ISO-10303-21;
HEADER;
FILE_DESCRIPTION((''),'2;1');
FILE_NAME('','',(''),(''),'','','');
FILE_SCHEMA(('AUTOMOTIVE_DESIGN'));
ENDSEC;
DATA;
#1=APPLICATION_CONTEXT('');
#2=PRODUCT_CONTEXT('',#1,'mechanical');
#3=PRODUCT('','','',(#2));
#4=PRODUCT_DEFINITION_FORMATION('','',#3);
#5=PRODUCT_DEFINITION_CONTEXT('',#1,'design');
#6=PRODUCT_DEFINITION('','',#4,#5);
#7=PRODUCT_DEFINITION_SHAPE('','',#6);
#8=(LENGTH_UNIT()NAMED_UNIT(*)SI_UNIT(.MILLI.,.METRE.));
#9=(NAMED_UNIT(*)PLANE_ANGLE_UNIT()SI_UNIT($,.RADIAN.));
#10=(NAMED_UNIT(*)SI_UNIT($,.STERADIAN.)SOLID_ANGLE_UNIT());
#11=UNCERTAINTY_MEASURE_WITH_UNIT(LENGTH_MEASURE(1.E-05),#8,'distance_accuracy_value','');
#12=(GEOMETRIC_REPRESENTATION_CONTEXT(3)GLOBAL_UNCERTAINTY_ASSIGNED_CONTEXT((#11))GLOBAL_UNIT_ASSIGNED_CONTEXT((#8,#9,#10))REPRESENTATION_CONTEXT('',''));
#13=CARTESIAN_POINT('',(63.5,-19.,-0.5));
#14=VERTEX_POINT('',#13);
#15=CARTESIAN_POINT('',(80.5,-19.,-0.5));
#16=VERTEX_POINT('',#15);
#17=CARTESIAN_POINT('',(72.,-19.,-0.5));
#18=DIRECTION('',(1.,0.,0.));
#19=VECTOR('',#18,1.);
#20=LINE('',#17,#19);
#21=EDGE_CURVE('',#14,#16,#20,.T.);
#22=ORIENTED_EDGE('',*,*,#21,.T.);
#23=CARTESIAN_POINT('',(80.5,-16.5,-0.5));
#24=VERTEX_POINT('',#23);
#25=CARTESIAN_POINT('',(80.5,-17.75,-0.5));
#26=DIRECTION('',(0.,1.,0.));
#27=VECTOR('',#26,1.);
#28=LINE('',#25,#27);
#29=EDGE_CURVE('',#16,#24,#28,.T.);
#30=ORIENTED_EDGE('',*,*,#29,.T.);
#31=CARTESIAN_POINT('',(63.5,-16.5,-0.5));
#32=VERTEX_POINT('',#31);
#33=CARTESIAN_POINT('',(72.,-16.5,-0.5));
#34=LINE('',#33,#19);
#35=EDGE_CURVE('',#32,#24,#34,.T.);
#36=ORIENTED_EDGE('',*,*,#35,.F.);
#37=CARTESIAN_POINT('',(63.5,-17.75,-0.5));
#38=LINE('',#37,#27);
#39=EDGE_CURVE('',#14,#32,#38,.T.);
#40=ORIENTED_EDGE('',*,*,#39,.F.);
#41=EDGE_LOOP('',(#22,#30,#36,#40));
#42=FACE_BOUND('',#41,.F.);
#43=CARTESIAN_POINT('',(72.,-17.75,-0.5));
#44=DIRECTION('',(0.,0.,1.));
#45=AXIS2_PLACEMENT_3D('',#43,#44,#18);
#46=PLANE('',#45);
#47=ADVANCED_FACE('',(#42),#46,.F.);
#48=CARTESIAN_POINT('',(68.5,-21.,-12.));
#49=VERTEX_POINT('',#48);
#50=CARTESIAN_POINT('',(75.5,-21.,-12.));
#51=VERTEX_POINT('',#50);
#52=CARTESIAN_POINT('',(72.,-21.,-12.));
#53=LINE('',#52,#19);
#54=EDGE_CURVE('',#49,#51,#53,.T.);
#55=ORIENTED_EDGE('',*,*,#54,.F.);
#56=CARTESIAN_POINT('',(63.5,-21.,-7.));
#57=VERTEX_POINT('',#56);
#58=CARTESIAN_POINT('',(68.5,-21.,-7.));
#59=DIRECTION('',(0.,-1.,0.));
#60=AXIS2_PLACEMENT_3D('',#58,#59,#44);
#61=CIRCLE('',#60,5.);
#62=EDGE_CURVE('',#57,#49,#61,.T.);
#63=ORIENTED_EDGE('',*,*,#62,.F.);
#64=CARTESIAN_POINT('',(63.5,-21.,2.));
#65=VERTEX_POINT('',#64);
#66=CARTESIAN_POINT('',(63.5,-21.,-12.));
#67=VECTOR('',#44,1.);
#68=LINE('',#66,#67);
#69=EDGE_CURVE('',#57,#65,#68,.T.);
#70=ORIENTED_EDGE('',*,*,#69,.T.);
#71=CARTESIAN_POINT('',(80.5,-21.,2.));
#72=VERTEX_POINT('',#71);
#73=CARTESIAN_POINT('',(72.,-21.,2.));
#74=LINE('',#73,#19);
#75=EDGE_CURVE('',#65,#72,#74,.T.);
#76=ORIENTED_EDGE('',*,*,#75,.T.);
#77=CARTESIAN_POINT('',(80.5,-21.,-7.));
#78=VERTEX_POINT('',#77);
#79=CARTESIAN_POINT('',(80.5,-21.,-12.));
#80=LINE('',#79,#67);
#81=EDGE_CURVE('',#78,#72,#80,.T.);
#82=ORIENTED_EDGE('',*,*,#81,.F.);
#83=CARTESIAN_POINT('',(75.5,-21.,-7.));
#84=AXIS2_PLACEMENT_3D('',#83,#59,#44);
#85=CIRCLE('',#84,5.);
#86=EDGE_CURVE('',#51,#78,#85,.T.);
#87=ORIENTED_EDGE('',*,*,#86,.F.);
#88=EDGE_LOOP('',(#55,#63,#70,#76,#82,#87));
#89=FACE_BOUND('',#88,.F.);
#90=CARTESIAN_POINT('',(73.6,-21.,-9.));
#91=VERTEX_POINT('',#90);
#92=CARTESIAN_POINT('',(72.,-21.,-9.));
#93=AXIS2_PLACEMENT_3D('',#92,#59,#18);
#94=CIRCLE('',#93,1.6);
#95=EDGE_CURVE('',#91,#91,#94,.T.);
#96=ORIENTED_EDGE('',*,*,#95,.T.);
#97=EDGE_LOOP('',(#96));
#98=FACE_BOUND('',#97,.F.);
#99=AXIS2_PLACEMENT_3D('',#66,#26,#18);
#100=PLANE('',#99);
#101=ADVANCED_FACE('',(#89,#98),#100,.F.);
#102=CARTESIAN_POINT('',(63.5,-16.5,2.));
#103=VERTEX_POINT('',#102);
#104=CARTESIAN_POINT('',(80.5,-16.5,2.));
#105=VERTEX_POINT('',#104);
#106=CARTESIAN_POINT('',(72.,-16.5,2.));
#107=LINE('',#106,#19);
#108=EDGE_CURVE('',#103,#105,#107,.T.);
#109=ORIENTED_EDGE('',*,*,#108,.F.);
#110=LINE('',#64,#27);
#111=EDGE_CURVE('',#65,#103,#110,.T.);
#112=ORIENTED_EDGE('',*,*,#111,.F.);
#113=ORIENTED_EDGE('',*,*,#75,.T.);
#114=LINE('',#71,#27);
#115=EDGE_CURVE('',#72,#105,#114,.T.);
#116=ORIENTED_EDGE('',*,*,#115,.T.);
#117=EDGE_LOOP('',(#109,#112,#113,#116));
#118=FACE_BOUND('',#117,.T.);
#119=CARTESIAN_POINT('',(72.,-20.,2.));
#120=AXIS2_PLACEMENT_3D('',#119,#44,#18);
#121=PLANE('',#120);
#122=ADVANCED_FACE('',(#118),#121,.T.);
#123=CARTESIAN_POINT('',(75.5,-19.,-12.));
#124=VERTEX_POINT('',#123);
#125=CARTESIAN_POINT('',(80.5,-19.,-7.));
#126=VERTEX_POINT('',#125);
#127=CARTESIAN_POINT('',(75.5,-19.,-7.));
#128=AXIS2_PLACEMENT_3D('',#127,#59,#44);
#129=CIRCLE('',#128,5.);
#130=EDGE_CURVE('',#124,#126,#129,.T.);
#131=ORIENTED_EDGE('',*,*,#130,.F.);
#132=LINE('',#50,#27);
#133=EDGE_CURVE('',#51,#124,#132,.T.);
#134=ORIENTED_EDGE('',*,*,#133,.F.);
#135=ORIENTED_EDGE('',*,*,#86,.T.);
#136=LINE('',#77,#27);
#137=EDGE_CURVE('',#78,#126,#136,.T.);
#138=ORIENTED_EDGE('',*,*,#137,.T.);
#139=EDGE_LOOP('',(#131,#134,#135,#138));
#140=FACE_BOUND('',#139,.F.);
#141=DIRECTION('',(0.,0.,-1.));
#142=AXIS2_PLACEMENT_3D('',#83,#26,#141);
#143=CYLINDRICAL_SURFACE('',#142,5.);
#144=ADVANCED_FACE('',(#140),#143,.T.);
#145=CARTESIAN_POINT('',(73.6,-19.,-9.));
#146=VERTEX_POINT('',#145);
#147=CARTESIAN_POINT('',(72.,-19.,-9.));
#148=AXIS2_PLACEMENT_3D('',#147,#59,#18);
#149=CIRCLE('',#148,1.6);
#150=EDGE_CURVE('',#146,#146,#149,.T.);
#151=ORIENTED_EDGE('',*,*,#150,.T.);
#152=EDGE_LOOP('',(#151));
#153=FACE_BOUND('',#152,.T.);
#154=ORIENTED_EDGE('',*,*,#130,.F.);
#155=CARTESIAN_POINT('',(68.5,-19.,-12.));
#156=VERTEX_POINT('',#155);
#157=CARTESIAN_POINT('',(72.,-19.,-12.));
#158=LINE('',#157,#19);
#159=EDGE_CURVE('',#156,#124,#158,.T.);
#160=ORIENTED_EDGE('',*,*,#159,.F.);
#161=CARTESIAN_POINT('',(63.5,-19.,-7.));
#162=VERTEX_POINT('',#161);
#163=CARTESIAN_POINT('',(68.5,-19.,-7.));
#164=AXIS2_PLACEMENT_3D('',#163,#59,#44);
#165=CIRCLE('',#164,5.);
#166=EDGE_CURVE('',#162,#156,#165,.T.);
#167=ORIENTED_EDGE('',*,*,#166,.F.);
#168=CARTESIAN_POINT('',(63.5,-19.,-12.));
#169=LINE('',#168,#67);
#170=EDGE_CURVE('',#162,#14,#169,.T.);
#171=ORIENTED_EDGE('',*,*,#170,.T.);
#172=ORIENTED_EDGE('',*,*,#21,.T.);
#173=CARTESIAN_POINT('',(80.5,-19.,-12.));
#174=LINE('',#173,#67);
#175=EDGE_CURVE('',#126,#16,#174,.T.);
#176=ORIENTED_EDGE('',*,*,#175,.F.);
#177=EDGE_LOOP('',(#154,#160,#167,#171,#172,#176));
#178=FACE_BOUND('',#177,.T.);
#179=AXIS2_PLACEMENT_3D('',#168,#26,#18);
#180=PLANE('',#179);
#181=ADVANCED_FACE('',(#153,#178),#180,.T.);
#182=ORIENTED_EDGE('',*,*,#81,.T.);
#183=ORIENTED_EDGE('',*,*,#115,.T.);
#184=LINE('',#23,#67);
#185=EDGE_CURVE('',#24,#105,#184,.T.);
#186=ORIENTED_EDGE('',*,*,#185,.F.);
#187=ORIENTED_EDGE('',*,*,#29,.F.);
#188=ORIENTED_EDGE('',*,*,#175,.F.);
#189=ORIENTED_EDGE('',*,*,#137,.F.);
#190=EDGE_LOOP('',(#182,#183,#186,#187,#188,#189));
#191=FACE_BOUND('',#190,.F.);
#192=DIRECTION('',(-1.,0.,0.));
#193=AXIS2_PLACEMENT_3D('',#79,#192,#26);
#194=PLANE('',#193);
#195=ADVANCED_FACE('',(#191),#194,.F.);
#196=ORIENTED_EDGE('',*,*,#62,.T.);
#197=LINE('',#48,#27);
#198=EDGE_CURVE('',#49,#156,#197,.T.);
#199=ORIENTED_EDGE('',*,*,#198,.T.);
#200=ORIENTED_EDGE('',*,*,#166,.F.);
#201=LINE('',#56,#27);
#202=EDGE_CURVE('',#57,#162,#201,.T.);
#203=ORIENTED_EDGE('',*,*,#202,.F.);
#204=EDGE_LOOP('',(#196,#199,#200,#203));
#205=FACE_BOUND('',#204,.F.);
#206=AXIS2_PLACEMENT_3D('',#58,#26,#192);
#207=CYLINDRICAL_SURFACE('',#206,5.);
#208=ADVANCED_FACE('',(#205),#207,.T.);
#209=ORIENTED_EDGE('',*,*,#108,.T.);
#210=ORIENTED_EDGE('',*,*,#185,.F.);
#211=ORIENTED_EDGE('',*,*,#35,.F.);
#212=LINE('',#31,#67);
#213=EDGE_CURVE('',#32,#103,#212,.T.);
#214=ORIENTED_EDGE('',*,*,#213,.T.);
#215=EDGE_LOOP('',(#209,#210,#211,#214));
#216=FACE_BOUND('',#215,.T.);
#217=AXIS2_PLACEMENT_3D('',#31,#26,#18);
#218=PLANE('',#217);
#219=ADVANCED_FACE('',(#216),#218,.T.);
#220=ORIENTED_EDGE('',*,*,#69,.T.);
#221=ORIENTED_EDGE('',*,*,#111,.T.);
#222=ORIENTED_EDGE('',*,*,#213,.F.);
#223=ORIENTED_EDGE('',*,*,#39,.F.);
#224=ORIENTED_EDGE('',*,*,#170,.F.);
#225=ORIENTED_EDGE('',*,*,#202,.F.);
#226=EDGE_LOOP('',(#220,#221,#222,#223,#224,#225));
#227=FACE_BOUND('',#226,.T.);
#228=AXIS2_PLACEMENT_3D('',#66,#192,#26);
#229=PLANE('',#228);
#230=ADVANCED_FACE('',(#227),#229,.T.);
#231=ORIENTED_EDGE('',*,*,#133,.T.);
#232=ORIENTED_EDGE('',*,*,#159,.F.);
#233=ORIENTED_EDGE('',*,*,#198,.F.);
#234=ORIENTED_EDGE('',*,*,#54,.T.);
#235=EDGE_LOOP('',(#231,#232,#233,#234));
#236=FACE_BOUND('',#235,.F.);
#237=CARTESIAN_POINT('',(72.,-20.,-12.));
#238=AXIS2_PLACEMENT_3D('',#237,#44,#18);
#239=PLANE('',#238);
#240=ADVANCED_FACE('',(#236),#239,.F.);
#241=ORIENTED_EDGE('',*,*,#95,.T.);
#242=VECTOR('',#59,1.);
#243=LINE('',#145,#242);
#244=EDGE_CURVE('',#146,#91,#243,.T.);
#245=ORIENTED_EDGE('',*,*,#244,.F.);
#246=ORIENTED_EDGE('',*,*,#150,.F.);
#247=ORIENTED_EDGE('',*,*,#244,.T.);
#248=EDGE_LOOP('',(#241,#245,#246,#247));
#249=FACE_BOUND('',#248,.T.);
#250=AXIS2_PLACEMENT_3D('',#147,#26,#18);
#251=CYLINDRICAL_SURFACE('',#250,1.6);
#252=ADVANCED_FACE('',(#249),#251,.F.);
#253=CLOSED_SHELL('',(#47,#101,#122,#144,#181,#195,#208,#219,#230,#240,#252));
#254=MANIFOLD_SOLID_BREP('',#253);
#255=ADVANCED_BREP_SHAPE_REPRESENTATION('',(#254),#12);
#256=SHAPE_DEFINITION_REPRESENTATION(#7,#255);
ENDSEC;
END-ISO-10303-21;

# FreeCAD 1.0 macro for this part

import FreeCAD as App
import Part
import Sketcher
from FreeCAD import Vector


def edges_at(feature, points):
    """Names of the edges that pass closest to the given points."""
    edges = feature.Shape.Edges
    near = lambda p: min(range(len(edges)), key=lambda i: edges[i].distToShape(Part.Vertex(*p))[0])
    return sorted({f"Edge{near(p) + 1}" for p in points})


def add_polygon(sketch, points):
    """Adds a closed chain of lines whose ends are joined by coincident constraints."""
    first, n = sketch.GeometryCount, len(points)
    for a, b in zip(points, points[1:] + points[:1]):
        sketch.addGeometry(Part.LineSegment(App.Vector(*a, 0), App.Vector(*b, 0)), False)
    for i in range(n):
        sketch.addConstraint(Sketcher.Constraint("Coincident", first + i, 2, first + (i + 1) % n, 1))

doc = App.newDocument("Part")
body = doc.addObject("PartDesign::Body", "Body")

# Sketch on XZ plane
sketch1 = doc.addObject("Sketcher::SketchObject", "Sketch")
body.addObject(sketch1)
sketch1.AttachmentSupport = (doc.XZ_Plane, [""])
sketch1.MapMode = "FlatFace"
sketch1.AttachmentOffset = App.Placement(Vector(0, 0, 19), App.Rotation())
sketch1.addGeometry(Part.Circle(Vector(72, -9, 0), Vector(0, 0, 1), 1.6), False)
sketch1.addConstraint([
    Sketcher.Constraint("Diameter", 0, 3.2),
    Sketcher.Constraint("DistanceX", -1, 1, 0, 3, 72.0),
    Sketcher.Constraint("DistanceY", 0, 3, -1, 1, 9.0),
])
pad1 = doc.addObject("PartDesign::Pad", "Pad")
body.addObject(pad1)
pad1.Profile = sketch1
pad1.Length = 2
body2 = doc.addObject("PartDesign::Body", "Body001")

# Sketch on XY plane
sketch2 = doc.addObject("Sketcher::SketchObject", "Sketch001")
body2.addObject(sketch2)
sketch2.AttachmentSupport = (doc.getObject("XY_Plane001"), [""])
sketch2.MapMode = "FlatFace"
sketch2.AttachmentOffset = App.Placement(Vector(0, 0, -12), App.Rotation())
add_polygon(sketch2, [(63.5, -19), (63.5, -21), (80.5, -21), (80.5, -19)])  # lines 0-3
sketch2.addConstraint([
    Sketcher.Constraint("Vertical", 0),
    Sketcher.Constraint("Horizontal", 1),
    Sketcher.Constraint("Vertical", 2),
    Sketcher.Constraint("Horizontal", 3),
    Sketcher.Constraint("DistanceX", 1, 1, 1, 2, 17.0),
    Sketcher.Constraint("DistanceY", 0, 2, 0, 1, 2.0),
    Sketcher.Constraint("DistanceY", 0, 2, -1, 1, 21.0),
    Sketcher.Constraint("DistanceX", -1, 1, 0, 2, 63.5),
])
pad2 = doc.addObject("PartDesign::Pad", "Pad001")
body2.addObject(pad2)
pad2.Profile = sketch2
pad2.Length = 14
doc.recompute()

boolean = doc.addObject("PartDesign::Boolean", "Boolean")
body2.addObject(boolean)
boolean.Type = "Cut"
boolean.addObjects([body])
doc.recompute()

fillet = doc.addObject("PartDesign::Fillet", "Fillet")
body2.addObject(fillet)
fillet.Base = (boolean, edges_at(boolean, [(63.5, -20, -12), (80.5, -20, -12)]))
fillet.Radius = 5
body3 = doc.addObject("PartDesign::Body", "Body002")

# Sketch on XY plane
sketch3 = doc.addObject("Sketcher::SketchObject", "Sketch002")
body3.addObject(sketch3)
sketch3.AttachmentSupport = (doc.getObject("XY_Plane002"), [""])
sketch3.MapMode = "FlatFace"
sketch3.AttachmentOffset = App.Placement(Vector(0, 0, -0.5), App.Rotation())
add_polygon(sketch3, [(63.5, -16.5), (63.5, -19), (80.5, -19), (80.5, -16.5)])  # lines 0-3
sketch3.addConstraint([
    Sketcher.Constraint("Vertical", 0),
    Sketcher.Constraint("Horizontal", 1),
    Sketcher.Constraint("Vertical", 2),
    Sketcher.Constraint("Horizontal", 3),
    Sketcher.Constraint("DistanceX", 1, 1, 1, 2, 17.0),
    Sketcher.Constraint("DistanceY", 0, 2, 0, 1, 2.5),
    Sketcher.Constraint("DistanceY", 0, 2, -1, 1, 19.0),
    Sketcher.Constraint("DistanceX", -1, 1, 0, 2, 63.5),
])
pad3 = doc.addObject("PartDesign::Pad", "Pad002")
body3.addObject(pad3)
pad3.Profile = sketch3
pad3.Length = 2.5
doc.recompute()

boolean2 = doc.addObject("PartDesign::Boolean", "Boolean001")
body3.addObject(boolean2)
boolean2.Type = "Fuse"
boolean2.addObjects([body2])

doc.recompute()
